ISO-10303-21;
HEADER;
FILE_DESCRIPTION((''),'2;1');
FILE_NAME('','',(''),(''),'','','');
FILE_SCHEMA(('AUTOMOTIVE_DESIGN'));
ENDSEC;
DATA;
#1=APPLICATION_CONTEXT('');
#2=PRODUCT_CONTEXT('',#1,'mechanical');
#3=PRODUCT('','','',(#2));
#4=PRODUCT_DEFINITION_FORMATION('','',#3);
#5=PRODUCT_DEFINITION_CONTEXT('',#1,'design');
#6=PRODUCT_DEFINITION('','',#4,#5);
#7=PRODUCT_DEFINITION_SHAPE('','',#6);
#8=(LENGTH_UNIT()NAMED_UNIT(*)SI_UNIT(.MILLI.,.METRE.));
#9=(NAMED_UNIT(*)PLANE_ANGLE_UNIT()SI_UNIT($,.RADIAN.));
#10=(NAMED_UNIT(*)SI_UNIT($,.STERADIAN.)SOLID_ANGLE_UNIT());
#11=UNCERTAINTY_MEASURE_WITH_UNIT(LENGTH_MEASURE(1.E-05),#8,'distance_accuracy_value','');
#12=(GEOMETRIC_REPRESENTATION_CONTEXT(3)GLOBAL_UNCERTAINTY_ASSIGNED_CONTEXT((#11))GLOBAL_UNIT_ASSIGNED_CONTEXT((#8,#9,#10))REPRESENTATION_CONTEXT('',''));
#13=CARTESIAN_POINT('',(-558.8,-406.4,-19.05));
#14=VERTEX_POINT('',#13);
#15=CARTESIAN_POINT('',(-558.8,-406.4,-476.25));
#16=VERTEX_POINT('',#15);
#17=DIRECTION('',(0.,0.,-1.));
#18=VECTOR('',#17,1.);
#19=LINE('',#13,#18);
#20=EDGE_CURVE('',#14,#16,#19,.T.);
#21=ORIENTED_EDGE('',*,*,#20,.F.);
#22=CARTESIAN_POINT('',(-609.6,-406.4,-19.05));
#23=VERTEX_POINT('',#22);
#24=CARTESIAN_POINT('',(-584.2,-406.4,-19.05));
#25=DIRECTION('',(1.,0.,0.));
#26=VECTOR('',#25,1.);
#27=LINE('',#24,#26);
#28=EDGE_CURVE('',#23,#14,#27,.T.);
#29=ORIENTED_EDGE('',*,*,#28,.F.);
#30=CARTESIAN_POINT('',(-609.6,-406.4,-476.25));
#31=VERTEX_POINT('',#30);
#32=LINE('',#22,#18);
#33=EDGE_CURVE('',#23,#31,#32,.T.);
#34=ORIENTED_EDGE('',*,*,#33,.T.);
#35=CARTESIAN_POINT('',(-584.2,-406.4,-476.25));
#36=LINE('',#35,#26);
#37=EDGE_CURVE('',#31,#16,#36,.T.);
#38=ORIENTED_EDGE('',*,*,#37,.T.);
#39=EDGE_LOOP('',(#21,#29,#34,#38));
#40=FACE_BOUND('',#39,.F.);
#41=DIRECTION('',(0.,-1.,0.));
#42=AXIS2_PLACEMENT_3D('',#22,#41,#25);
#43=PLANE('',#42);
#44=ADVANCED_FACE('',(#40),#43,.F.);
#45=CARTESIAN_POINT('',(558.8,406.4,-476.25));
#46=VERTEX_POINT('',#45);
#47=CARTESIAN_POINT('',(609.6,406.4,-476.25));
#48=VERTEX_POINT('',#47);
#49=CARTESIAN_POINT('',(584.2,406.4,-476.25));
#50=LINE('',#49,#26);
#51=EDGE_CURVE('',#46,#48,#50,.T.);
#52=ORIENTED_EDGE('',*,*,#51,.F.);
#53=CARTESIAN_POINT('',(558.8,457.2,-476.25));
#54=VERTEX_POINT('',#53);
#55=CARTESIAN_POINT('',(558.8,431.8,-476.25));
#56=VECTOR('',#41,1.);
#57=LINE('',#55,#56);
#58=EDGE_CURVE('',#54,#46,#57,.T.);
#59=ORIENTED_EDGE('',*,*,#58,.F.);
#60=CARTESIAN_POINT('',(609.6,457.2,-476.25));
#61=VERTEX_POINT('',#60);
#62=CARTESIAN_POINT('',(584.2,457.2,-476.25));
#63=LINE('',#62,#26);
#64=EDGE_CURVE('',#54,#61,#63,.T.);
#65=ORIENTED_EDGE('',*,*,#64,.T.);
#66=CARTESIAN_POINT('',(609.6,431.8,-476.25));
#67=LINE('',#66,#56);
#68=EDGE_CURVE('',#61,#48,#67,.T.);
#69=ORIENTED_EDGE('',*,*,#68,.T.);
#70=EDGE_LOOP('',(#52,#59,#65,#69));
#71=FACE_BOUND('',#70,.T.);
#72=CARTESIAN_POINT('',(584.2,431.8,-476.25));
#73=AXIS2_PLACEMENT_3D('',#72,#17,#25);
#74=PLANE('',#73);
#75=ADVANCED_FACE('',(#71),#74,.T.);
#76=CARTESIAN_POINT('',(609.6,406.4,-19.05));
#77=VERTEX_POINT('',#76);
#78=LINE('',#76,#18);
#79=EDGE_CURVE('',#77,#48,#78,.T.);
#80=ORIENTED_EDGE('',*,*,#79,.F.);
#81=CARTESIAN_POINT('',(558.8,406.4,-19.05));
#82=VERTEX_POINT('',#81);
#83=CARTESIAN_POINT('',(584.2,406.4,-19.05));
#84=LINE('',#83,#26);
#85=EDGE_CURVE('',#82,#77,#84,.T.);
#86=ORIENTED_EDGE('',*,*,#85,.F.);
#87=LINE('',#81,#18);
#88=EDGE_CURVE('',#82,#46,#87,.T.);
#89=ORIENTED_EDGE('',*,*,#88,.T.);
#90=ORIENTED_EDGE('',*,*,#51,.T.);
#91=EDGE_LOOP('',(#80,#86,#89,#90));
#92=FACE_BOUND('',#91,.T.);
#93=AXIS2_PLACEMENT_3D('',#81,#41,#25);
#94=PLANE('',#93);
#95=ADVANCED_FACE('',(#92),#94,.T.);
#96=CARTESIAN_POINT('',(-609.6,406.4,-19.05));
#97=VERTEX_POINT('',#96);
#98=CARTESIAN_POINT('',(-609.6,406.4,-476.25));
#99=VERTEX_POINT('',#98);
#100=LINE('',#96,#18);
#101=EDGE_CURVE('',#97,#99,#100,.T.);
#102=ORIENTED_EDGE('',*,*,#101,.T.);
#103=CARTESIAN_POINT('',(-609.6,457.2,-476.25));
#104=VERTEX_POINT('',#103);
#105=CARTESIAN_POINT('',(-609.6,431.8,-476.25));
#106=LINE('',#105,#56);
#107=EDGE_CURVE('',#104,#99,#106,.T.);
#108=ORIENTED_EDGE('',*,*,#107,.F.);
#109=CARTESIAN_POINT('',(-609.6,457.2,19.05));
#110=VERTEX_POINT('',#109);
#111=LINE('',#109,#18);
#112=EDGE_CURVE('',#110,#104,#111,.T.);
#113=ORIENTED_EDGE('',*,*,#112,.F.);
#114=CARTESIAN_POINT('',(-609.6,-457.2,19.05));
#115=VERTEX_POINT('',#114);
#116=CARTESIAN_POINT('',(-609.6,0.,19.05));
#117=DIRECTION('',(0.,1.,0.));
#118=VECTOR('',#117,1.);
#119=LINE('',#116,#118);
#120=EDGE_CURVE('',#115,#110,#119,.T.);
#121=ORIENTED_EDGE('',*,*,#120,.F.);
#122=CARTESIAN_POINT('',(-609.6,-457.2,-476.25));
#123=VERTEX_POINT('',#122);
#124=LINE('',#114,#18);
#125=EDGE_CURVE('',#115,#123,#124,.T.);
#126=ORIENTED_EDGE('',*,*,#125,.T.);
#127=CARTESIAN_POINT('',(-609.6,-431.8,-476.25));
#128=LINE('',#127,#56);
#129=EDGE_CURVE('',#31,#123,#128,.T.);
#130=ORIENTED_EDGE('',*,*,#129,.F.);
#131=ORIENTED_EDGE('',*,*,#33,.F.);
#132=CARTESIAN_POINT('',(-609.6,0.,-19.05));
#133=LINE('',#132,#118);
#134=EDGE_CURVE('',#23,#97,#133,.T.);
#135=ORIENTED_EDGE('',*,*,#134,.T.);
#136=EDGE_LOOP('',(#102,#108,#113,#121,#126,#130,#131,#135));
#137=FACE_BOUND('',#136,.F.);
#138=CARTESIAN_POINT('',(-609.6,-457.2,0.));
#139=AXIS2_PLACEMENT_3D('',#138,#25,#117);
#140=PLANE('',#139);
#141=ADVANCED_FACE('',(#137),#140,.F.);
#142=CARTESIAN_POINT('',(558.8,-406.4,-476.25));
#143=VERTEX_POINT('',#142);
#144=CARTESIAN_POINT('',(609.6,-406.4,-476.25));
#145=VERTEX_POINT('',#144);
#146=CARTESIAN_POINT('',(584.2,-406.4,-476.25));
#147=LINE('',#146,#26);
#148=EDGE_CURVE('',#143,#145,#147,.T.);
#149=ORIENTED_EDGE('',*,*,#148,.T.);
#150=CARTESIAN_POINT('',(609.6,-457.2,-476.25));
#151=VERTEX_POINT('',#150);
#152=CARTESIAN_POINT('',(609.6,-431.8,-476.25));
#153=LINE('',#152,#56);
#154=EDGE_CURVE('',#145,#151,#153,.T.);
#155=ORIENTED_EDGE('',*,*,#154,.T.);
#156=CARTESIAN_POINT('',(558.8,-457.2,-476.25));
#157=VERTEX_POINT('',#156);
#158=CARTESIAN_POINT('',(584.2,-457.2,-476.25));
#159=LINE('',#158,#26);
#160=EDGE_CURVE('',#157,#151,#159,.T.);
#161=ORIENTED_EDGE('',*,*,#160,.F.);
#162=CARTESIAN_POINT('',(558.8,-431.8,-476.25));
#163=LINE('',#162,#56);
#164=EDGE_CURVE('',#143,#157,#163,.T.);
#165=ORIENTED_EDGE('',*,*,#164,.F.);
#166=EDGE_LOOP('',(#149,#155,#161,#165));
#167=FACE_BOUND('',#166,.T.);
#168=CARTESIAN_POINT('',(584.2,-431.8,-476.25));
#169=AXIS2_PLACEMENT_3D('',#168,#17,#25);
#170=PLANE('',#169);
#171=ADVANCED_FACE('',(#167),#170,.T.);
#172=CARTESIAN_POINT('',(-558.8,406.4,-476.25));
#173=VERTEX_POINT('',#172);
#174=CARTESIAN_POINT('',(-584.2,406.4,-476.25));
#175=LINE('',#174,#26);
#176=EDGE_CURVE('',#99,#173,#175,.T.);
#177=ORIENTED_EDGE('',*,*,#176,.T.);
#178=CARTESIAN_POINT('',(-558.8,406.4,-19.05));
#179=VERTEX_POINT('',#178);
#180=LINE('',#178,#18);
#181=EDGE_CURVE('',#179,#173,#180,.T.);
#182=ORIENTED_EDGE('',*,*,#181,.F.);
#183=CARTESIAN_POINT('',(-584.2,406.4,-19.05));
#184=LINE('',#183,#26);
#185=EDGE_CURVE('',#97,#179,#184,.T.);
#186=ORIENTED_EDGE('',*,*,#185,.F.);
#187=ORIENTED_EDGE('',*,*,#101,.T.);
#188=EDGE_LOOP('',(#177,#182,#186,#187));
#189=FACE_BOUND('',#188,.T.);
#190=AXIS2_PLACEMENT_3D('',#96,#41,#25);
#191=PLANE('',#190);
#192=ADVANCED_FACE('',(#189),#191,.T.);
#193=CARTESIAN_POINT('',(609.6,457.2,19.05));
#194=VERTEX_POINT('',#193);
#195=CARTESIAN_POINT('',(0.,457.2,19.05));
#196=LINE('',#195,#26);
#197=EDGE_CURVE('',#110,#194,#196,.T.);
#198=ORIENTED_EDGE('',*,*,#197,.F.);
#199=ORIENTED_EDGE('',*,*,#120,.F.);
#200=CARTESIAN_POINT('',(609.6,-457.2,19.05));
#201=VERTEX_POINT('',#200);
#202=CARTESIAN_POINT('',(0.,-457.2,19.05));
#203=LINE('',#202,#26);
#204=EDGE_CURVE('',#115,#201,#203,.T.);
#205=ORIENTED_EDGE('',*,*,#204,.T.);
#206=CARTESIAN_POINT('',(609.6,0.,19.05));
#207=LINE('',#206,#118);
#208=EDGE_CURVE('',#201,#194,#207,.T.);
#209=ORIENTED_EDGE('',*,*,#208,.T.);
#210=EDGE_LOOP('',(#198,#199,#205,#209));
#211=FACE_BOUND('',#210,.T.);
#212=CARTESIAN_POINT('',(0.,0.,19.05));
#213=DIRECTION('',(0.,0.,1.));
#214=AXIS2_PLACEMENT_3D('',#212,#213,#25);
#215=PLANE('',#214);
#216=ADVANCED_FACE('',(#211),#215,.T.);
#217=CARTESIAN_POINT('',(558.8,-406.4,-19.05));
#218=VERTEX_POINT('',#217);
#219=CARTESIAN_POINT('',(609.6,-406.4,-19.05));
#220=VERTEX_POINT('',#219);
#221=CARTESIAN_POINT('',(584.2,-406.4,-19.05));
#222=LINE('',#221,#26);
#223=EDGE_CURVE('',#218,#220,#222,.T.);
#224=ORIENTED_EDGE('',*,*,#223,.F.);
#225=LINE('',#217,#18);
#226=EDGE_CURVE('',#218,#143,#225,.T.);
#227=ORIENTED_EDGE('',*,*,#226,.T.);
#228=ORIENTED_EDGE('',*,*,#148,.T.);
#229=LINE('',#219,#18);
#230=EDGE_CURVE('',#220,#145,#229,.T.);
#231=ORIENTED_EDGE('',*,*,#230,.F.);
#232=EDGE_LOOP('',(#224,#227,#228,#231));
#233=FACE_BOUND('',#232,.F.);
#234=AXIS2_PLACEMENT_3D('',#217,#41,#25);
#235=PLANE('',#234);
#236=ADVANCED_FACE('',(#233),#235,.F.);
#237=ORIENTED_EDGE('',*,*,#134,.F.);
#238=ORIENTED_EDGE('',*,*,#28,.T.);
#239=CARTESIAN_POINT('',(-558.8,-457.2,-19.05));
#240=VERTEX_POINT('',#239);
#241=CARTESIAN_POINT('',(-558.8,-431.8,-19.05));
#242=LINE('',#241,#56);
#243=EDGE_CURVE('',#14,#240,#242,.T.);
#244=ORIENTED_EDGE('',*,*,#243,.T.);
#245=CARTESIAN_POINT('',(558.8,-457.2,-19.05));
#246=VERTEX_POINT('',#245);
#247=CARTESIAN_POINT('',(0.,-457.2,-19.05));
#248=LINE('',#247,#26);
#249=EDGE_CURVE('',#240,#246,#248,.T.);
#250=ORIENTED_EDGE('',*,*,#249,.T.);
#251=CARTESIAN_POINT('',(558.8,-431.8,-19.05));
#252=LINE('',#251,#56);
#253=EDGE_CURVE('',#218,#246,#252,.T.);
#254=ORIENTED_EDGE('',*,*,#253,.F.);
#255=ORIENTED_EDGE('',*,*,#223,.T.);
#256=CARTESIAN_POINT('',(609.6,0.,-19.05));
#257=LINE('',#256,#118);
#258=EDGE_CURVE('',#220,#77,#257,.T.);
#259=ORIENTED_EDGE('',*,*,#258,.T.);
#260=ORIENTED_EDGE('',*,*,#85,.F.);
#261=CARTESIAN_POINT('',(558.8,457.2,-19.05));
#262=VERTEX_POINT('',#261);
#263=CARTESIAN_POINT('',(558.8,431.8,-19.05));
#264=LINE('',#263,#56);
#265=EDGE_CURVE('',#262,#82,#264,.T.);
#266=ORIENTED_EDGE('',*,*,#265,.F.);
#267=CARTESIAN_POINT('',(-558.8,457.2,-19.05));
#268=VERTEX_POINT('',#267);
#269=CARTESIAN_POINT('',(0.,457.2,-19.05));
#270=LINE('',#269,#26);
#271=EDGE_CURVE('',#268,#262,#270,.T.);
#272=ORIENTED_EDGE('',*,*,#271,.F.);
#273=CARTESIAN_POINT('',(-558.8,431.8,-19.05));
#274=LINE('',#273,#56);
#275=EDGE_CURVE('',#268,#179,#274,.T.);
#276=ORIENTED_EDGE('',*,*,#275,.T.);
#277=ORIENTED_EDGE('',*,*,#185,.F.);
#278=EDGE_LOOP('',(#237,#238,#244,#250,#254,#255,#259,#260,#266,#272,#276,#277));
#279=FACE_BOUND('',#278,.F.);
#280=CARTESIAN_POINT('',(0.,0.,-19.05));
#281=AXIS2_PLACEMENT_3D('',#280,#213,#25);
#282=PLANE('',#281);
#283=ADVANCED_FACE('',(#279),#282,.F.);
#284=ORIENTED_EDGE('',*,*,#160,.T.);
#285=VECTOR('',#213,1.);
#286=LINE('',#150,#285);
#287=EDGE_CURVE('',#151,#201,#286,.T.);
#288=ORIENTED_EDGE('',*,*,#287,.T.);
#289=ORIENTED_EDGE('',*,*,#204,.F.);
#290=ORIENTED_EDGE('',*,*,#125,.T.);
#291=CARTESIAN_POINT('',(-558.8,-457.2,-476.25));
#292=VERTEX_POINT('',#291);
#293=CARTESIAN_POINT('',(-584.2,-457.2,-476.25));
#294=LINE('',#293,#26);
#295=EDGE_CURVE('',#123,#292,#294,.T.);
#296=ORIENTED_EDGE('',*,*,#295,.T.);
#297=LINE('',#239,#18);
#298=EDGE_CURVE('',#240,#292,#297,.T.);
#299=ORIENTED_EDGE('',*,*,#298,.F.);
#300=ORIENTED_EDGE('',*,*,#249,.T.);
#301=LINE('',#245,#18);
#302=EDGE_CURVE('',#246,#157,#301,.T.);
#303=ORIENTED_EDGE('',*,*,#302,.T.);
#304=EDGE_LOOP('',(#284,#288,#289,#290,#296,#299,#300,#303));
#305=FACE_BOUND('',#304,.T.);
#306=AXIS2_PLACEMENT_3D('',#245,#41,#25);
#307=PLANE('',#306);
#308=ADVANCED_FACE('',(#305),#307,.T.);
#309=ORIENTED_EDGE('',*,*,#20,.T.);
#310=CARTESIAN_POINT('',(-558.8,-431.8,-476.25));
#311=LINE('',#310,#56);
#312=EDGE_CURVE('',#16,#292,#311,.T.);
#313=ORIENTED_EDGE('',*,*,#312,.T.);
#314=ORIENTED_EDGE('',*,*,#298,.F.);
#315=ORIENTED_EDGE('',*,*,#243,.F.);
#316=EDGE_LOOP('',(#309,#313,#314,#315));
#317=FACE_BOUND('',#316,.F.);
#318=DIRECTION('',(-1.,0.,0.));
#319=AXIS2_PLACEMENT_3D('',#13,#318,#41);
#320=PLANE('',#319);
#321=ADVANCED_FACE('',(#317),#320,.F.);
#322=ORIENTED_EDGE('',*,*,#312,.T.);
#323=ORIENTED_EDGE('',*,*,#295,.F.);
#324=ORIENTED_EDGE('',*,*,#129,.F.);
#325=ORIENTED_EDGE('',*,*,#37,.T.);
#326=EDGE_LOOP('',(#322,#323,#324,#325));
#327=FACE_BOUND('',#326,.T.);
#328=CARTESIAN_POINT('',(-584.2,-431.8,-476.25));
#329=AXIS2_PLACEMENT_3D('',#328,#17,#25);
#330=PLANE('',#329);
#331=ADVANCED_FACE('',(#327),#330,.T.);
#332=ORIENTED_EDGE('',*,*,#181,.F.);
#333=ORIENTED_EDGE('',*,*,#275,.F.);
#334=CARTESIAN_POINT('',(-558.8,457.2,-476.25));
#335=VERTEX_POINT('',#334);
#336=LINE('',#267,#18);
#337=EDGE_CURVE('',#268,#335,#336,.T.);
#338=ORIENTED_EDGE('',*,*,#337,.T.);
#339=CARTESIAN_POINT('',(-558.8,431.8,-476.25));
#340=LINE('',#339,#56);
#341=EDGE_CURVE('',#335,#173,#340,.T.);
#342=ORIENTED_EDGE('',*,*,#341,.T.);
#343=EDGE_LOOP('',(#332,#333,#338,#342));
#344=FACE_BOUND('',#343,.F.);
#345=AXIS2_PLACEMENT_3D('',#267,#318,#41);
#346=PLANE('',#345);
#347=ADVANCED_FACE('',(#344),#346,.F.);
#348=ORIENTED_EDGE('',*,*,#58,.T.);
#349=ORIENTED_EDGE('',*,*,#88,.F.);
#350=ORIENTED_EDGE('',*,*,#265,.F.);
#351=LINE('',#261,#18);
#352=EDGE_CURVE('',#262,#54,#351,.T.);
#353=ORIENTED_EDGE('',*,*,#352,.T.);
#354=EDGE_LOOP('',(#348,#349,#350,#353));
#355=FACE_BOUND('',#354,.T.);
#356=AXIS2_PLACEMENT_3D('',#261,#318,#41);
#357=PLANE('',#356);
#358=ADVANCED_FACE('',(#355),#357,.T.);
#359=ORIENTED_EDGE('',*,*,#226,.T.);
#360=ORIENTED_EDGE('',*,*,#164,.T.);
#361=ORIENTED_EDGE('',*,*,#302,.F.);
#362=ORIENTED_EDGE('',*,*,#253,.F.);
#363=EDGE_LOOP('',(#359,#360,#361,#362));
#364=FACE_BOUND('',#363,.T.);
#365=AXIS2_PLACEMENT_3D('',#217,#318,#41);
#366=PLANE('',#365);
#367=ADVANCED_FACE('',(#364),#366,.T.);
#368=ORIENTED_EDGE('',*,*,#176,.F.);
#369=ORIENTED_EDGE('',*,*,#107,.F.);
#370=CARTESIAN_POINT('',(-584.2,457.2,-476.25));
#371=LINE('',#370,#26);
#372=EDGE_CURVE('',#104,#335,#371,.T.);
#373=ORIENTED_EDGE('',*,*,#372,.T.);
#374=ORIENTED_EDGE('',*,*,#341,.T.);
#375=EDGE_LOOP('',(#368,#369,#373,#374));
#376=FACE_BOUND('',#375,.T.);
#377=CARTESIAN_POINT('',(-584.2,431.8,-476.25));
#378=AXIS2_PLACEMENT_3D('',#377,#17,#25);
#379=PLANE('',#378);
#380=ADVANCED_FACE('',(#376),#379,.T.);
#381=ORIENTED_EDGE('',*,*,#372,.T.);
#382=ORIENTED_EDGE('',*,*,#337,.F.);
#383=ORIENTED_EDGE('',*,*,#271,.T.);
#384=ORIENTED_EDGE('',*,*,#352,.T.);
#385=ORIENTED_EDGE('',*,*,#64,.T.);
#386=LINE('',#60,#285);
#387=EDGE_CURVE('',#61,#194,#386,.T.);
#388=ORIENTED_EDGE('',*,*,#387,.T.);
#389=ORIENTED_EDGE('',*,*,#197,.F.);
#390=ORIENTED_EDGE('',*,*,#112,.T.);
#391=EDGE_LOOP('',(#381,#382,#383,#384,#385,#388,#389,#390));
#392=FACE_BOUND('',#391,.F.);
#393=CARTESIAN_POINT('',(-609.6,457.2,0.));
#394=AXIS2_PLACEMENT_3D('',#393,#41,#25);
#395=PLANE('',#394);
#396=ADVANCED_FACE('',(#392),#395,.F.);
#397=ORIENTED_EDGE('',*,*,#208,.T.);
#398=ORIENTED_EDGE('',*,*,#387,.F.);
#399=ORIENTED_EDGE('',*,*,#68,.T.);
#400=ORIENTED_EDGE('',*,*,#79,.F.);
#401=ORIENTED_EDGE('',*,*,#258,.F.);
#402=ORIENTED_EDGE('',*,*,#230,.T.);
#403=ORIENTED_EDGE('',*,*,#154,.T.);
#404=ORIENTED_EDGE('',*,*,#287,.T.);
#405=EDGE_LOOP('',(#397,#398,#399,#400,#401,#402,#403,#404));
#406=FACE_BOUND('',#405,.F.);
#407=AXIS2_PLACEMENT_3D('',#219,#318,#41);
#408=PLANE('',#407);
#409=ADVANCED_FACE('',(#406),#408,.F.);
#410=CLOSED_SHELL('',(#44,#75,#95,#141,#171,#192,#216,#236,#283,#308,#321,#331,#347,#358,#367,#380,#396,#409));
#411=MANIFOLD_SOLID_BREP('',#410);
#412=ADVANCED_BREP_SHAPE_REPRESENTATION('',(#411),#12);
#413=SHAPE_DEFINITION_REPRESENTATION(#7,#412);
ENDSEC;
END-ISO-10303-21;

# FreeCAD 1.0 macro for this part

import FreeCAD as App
import Part
import Sketcher
Q = App.Units.Quantity


def add_polygon(sketch, points):
    """Adds a closed chain of lines whose ends are joined by coincident constraints."""
    first, n = sketch.GeometryCount, len(points)
    for a, b in zip(points, points[1:] + points[:1]):
        sketch.addGeometry(Part.LineSegment(App.Vector(*a, 0), App.Vector(*b, 0)), False)
    for i in range(n):
        sketch.addConstraint(Sketcher.Constraint("Coincident", first + i, 2, first + (i + 1) % n, 1))

doc = App.newDocument("Part")
params = doc.addObject("Spreadsheet::Sheet", "Params")
for row, (alias, value) in enumerate([
    ("sketch1_width", "48 in"),
    ("sketch1_height", "36 in"),
    ("pad1_length", "1.5 in"),
    ("sketch2_width", "2 in"),
    ("pad2_length", "18 in"),
], start=1):
    params.set(f"A{row}", alias)
    params.set(f"B{row}", "=" + value)
    params.setAlias(f"B{row}", alias)

body = doc.addObject("PartDesign::Body", "Body")

# Sketch on XY plane
sketch1 = body.newObject("Sketcher::SketchObject", "Sketch")
sketch1.AttachmentSupport = (doc.getObject("XY_Plane"), [""])
sketch1.MapMode = "FlatFace"
add_polygon(sketch1, [(-610, 457), (-610, -457), (610, -457), (610, 457)])  # lines 0-3
sketch1.addConstraint([
    Sketcher.Constraint("Vertical", 0),
    Sketcher.Constraint("Horizontal", 1),
    Sketcher.Constraint("Vertical", 2),
    Sketcher.Constraint("Horizontal", 3),
    Sketcher.Constraint("Symmetric", 0, 2, 2, 2, -1, 1),
    Sketcher.Constraint("DistanceX", 1, 1, 1, 2, Q("48 in")),
    Sketcher.Constraint("DistanceY", 0, 2, 0, 1, Q("36 in")),
])
sketch1.setExpression("Constraints[9]", "Params.sketch1_width")
sketch1.setExpression("Constraints[10]", "Params.sketch1_height")
pad1 = body.newObject("PartDesign::Pad", "Pad")
pad1.Profile = sketch1
pad1.setExpression("Length", "Params.pad1_length")
pad1.Midplane = True

# Sketch on XY plane
sketch2 = body.newObject("Sketcher::SketchObject", "Sketch001")
sketch2.AttachmentSupport = (doc.getObject("XY_Plane"), [""])
sketch2.MapMode = "FlatFace"
sketch2.AttachmentOffset = App.Placement(App.Vector(0, 0, -0.75 * 25.4), App.Rotation())
add_polygon(sketch2, [(559, -457), (559, -406), (610, -406), (610, -457)])  # lines 0-3
add_polygon(sketch2, [(559, 406), (559, 457), (610, 457), (610, 406)])  # lines 4-7
add_polygon(sketch2, [(-610, 406), (-610, 457), (-559, 457), (-559, 406)])  # lines 8-11
add_polygon(sketch2, [(-610, -457), (-610, -406), (-559, -406), (-559, -457)])  # lines 12-15
sketch2.addConstraint([
    Sketcher.Constraint("Vertical", 0),
    Sketcher.Constraint("Horizontal", 1),
    Sketcher.Constraint("Vertical", 2),
    Sketcher.Constraint("Horizontal", 3),
    Sketcher.Constraint("Vertical", 4),
    Sketcher.Constraint("Horizontal", 5),
    Sketcher.Constraint("Vertical", 6),
    Sketcher.Constraint("Horizontal", 7),
    Sketcher.Constraint("Vertical", 8),
    Sketcher.Constraint("Horizontal", 9),
    Sketcher.Constraint("Vertical", 10),
    Sketcher.Constraint("Horizontal", 11),
    Sketcher.Constraint("Vertical", 12),
    Sketcher.Constraint("Horizontal", 13),
    Sketcher.Constraint("Vertical", 14),
    Sketcher.Constraint("Horizontal", 15),
    Sketcher.Constraint("Symmetric", 2, 2, 8, 2, -1, 1),
    Sketcher.Constraint("Symmetric", 0, 2, 10, 2, -1, 1),
    Sketcher.Constraint("Symmetric", 6, 2, 12, 2, -1, 1),
    Sketcher.Constraint("Symmetric", 4, 2, 14, 2, -1, 1),
    Sketcher.Constraint("Symmetric", 5, 2, 8, 2, -2),
    Sketcher.Constraint("Symmetric", 7, 2, 10, 2, -2),
    Sketcher.Constraint("Equal", 15, 0),
    Sketcher.Constraint("DistanceX", 1, 1, 1, 2, Q("2 in")),
    Sketcher.Constraint("DistanceX", -1, 1, 0, 2, Q("22 in")),
    Sketcher.Constraint("DistanceY", 0, 2, -1, 1, Q("16 in")),
])
sketch2.setExpression("Constraints[39]", "Params.sketch2_width")
pad2 = body.newObject("PartDesign::Pad", "Pad001")
pad2.Profile = sketch2
pad2.setExpression("Length", "Params.pad2_length")
pad2.Reversed = True

doc.recompute()
